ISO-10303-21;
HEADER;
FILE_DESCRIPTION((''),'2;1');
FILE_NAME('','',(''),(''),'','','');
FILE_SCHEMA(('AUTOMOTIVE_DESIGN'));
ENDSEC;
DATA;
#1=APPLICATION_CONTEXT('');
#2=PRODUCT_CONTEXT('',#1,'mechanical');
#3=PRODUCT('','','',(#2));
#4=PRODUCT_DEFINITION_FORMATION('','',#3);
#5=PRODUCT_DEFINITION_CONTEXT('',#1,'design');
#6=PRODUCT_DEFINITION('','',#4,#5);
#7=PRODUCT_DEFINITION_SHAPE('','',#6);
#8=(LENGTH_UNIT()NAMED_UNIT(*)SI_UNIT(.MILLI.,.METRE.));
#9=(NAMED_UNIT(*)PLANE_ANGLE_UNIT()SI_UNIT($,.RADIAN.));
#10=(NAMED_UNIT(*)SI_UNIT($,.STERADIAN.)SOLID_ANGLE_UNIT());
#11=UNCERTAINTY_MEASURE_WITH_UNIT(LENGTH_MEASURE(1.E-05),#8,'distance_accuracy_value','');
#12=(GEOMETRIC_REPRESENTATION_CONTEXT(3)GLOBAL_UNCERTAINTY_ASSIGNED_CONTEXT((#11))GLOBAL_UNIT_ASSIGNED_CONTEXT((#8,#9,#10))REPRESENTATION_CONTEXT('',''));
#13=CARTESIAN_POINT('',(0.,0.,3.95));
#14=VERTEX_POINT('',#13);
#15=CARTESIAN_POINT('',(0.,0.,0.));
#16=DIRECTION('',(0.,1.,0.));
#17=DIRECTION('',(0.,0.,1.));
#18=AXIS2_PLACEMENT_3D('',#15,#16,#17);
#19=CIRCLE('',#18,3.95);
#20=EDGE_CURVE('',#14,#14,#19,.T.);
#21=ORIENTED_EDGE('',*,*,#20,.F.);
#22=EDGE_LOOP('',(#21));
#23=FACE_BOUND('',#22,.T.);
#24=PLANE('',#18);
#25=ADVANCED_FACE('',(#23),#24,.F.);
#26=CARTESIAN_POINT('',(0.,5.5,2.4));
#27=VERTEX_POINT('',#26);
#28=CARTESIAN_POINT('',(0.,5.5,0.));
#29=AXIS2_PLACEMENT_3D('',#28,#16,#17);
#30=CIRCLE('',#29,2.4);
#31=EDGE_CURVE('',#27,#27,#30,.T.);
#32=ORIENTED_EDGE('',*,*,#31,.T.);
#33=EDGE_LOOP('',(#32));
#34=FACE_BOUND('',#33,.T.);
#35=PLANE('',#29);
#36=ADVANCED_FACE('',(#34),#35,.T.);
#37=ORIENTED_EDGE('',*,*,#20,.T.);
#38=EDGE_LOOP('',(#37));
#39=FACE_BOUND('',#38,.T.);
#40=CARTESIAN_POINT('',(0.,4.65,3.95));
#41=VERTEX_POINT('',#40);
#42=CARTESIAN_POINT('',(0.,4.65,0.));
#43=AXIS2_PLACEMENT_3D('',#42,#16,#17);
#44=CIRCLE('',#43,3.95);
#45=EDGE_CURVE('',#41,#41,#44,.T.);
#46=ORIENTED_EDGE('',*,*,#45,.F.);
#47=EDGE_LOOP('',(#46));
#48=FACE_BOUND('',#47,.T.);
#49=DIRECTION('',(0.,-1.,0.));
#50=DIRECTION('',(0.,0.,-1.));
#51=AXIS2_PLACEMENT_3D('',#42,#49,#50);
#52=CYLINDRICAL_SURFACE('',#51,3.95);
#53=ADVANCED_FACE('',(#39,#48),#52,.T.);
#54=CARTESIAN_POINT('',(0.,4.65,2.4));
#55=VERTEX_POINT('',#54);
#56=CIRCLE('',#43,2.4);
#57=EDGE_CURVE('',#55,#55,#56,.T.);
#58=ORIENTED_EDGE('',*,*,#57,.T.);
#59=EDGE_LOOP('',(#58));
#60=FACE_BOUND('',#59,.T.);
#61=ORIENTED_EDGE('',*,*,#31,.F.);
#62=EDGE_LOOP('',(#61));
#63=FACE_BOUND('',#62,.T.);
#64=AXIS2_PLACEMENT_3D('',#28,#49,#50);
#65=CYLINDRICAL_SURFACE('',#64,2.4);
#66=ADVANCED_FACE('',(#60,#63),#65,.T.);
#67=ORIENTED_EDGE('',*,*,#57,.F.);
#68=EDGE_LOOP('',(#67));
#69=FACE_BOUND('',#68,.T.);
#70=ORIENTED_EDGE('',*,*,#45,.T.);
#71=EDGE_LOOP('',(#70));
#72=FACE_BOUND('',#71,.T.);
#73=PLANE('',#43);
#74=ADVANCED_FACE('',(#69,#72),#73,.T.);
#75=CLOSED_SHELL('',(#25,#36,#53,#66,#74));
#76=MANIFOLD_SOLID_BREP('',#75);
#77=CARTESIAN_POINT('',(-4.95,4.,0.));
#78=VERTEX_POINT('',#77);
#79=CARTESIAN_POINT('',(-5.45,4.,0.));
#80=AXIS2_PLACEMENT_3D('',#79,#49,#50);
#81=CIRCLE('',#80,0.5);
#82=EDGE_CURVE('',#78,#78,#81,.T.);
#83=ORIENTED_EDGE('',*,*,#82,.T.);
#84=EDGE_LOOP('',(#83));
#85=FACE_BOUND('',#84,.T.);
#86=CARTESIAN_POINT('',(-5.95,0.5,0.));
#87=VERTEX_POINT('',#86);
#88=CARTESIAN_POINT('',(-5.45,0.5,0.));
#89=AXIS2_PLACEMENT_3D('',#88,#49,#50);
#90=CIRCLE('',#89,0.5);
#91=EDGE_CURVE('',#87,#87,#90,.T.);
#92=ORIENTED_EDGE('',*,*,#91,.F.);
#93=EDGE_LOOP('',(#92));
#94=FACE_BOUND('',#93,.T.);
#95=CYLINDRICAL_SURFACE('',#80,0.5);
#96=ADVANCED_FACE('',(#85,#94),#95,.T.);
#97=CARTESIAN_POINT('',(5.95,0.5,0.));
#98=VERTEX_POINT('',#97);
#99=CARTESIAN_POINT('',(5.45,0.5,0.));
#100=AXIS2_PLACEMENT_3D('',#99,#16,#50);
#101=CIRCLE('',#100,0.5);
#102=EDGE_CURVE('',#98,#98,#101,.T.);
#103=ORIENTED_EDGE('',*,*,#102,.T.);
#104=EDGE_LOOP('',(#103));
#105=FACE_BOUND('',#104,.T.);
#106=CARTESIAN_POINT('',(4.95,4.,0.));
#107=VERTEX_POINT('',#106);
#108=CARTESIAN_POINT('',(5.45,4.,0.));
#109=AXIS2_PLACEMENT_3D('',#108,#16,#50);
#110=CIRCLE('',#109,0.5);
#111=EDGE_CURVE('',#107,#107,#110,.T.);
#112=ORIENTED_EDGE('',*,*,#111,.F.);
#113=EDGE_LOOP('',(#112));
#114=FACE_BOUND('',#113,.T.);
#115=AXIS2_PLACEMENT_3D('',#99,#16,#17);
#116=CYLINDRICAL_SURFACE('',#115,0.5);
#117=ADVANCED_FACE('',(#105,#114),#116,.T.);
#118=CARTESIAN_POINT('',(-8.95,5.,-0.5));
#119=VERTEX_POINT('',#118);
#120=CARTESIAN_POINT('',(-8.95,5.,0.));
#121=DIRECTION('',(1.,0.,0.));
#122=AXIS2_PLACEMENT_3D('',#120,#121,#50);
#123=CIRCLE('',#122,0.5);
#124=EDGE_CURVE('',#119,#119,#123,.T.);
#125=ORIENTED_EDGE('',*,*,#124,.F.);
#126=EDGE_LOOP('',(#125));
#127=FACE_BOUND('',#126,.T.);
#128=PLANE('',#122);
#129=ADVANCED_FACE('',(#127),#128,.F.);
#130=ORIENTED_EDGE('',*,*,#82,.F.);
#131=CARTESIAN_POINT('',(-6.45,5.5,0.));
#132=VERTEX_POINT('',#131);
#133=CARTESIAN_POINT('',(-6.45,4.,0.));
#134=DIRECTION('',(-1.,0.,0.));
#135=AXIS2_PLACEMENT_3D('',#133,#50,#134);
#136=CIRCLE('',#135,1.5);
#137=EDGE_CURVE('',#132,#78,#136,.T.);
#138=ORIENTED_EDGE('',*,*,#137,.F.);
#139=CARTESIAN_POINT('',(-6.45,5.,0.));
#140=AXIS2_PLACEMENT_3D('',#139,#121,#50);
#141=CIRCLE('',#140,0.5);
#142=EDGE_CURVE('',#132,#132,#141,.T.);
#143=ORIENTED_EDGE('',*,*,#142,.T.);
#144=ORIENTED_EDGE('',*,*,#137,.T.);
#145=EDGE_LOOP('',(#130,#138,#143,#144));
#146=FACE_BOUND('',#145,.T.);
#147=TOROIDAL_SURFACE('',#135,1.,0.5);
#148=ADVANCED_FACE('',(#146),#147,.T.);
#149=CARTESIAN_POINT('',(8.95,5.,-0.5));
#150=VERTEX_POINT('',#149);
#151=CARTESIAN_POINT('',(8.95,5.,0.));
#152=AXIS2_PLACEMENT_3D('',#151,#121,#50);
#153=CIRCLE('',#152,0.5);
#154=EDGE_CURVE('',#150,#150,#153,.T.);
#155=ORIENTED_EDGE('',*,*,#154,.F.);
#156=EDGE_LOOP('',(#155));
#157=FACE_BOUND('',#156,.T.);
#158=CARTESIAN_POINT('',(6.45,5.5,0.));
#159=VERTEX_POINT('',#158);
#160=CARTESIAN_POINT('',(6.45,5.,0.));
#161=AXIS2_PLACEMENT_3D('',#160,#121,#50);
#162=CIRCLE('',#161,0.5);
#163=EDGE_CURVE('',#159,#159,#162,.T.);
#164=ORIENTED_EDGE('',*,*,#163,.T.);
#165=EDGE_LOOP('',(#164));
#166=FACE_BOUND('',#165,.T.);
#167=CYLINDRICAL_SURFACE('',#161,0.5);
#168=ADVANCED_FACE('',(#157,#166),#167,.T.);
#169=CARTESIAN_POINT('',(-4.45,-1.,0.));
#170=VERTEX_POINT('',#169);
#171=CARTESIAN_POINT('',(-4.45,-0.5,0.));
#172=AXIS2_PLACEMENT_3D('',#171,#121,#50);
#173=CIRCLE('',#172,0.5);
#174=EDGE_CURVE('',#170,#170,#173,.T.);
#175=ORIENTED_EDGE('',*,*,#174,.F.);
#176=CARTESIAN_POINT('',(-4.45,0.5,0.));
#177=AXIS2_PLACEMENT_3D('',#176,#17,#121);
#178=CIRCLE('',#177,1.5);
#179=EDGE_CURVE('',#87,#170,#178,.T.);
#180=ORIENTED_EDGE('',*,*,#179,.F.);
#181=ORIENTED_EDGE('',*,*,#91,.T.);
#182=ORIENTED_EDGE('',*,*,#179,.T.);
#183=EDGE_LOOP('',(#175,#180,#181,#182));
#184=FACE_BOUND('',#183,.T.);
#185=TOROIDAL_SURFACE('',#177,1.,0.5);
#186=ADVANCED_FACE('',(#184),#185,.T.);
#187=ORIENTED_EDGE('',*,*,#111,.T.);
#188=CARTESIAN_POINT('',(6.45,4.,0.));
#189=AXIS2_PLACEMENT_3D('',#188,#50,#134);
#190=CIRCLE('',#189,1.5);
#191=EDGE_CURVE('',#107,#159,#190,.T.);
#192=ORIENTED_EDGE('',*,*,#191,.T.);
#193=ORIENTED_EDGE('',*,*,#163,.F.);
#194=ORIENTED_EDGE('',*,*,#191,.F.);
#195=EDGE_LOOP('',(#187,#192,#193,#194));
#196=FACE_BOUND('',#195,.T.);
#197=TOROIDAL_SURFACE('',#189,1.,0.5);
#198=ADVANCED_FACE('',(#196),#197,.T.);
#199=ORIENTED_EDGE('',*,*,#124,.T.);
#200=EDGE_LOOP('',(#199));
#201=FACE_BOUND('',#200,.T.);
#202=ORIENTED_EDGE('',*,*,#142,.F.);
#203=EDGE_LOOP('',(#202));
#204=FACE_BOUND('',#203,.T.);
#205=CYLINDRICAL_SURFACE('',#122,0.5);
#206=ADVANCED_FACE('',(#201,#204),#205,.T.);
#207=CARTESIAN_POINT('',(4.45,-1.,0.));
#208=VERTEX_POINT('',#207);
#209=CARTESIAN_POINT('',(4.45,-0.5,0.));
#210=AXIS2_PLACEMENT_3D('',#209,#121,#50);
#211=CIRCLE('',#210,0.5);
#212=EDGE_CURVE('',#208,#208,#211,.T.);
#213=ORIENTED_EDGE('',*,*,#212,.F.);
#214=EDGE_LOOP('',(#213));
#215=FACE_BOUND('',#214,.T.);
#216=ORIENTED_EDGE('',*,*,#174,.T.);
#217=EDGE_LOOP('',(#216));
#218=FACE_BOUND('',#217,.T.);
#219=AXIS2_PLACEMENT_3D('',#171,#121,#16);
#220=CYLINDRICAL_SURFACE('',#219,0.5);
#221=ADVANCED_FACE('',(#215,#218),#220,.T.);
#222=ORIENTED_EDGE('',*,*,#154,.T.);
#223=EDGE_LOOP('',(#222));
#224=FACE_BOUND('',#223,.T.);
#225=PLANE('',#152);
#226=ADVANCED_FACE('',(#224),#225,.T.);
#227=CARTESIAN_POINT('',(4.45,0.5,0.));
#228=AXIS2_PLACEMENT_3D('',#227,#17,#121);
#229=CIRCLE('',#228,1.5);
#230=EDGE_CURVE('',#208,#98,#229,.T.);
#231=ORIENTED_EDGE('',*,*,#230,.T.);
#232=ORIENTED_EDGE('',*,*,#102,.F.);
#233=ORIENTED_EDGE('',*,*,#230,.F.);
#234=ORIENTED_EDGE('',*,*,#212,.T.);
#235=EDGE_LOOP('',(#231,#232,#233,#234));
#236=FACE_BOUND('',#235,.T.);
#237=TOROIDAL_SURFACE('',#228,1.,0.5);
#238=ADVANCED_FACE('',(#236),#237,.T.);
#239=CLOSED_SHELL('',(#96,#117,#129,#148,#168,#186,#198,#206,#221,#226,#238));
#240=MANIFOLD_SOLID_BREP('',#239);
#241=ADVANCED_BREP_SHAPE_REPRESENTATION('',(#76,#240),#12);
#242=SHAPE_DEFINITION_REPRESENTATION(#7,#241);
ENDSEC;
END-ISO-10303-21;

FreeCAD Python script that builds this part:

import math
import FreeCAD as App
import Part
import Sketcher

V = App.Vector

doc = App.newDocument("Part")
body = doc.addObject("PartDesign::Body", "Body")

# Sketch on XZ plane
sketch1 = doc.addObject("Sketcher::SketchObject", "Sketch")
body.addObject(sketch1)
sketch1.AttachmentSupport = (doc.XZ_Plane, [""])
sketch1.MapMode = "FlatFace"
sketch1.addGeometry(Part.Circle(V(0, 0, 0), V(0, 0, 1), 3.95), False)
sketch1.addConstraint([
    Sketcher.Constraint("Coincident", 0, 3, -1, 1),
    Sketcher.Constraint("Diameter", 0, 7.9),
])
pad1 = doc.addObject("PartDesign::Pad", "Pad")
body.addObject(pad1)
pad1.Profile = sketch1
pad1.Length = 4.65
pad1.Reversed = True

# Sketch on XZ plane
sketch2 = doc.addObject("Sketcher::SketchObject", "Sketch001")
body.addObject(sketch2)
sketch2.AttachmentSupport = (doc.XZ_Plane, [""])
sketch2.MapMode = "FlatFace"
sketch2.AttachmentOffset = App.Placement(V(0, 0, -4.65), App.Rotation())
sketch2.addGeometry(Part.Circle(V(0, 0, 0), V(0, 0, 1), 2.4), False)
sketch2.addConstraint([
    Sketcher.Constraint("Coincident", 0, 3, -1, 1),
    Sketcher.Constraint("Diameter", 0, 4.8),
])
pad2 = doc.addObject("PartDesign::Pad", "Pad001")
body.addObject(pad2)
pad2.Profile = sketch2
pad2.Length = 0.85
pad2.Reversed = True
body2 = doc.addObject("PartDesign::Body", "Body001")

# Sketch on YZ plane
sketch3 = doc.addObject("Sketcher::SketchObject", "Sketch002")
body2.addObject(sketch3)
sketch3.AttachmentSupport = (doc.getObject("YZ_Plane001"), [""])
sketch3.MapMode = "FlatFace"
sketch3.AttachmentOffset = App.Placement(V(0, 0, -8.95), App.Rotation())
sketch3.addGeometry(Part.Circle(V(5, 0, 0), V(0, 0, 1), 0.5), False)
sketch3.addConstraint([
    Sketcher.Constraint("PointOnObject", 0, 3, -1),
    Sketcher.Constraint("Diameter", 0, 1.0),
    Sketcher.Constraint("DistanceX", -1, 1, 0, 3, 5.0),
])

# Sketch on XY plane
sketch4 = doc.addObject("Sketcher::SketchObject", "Sketch003")
body2.addObject(sketch4)
sketch4.AttachmentSupport = (doc.getObject("XY_Plane001"), [""])
sketch4.MapMode = "FlatFace"
sketch4.addGeometry([
    Part.LineSegment(V(-8.95, 5, 0), V(-6.45, 5, 0)),  # 0
    Part.ArcOfCircle(Part.Circle(V(-6.45, 4, 0), V(0, 0, 1), 1), math.radians(0), math.radians(90)),  # 1
    Part.LineSegment(V(-5.45, 4, 0), V(-5.45, 0.5, 0)),  # 2
    Part.ArcOfCircle(Part.Circle(V(-4.45, 0.5, 0), V(0, 0, 1), 1), math.radians(-180), math.radians(-90)),  # 3
    Part.LineSegment(V(-4.45, -0.5, 0), V(4.45, -0.5, 0)),  # 4
    Part.ArcOfCircle(Part.Circle(V(4.45, 0.5, 0), V(0, 0, 1), 1), math.radians(-90), math.radians(0)),  # 5
    Part.LineSegment(V(5.45, 0.5, 0), V(5.45, 4, 0)),  # 6
    Part.ArcOfCircle(Part.Circle(V(6.45, 4, 0), V(0, 0, 1), 1), math.radians(90), math.radians(180)),  # 7
    Part.LineSegment(V(6.45, 5, 0), V(8.95, 5, 0)),  # 8
], False)
sketch4.addConstraint([
    Sketcher.Constraint("Tangent", 0, 2, 1, 2),
    Sketcher.Constraint("Tangent", 1, 1, 2, 1),
    Sketcher.Constraint("Tangent", 2, 2, 3, 1),
    Sketcher.Constraint("Tangent", 3, 2, 4, 1),
    Sketcher.Constraint("Tangent", 4, 2, 5, 1),
    Sketcher.Constraint("Tangent", 5, 2, 6, 1),
    Sketcher.Constraint("Tangent", 6, 2, 7, 2),
    Sketcher.Constraint("Tangent", 7, 1, 8, 1),
    Sketcher.Constraint("Horizontal", 0),
    Sketcher.Constraint("Vertical", 2),
    Sketcher.Constraint("Horizontal", 4),
    Sketcher.Constraint("Vertical", 6),
    Sketcher.Constraint("Horizontal", 8),
    Sketcher.Constraint("Equal", 1, 3),
    Sketcher.Constraint("Equal", 3, 5),
    Sketcher.Constraint("Equal", 5, 7),
    Sketcher.Constraint("Symmetric", 1, 3, 7, 3, -2),
    Sketcher.Constraint("Equal", 0, 8),
    Sketcher.Constraint("Radius", 1, 1.0),
    Sketcher.Constraint("DistanceX", 0, 1, 0, 2, 2.5),
    Sketcher.Constraint("DistanceX", 4, 1, 4, 2, 8.9),
    Sketcher.Constraint("DistanceY", 2, 2, 2, 1, 3.5),
    Sketcher.Constraint("DistanceY", -1, 1, 1, 3, 4.0),
])
doc.recompute()

additivepipe = doc.addObject("PartDesign::AdditivePipe", "AdditivePipe")
body2.addObject(additivepipe)
additivepipe.Profile = sketch3
additivepipe.Spine = (sketch4, ["Edge1", "Edge2", "Edge3", "Edge4", "Edge5", "Edge6", "Edge7", "Edge8", "Edge9"])

doc.recompute()
